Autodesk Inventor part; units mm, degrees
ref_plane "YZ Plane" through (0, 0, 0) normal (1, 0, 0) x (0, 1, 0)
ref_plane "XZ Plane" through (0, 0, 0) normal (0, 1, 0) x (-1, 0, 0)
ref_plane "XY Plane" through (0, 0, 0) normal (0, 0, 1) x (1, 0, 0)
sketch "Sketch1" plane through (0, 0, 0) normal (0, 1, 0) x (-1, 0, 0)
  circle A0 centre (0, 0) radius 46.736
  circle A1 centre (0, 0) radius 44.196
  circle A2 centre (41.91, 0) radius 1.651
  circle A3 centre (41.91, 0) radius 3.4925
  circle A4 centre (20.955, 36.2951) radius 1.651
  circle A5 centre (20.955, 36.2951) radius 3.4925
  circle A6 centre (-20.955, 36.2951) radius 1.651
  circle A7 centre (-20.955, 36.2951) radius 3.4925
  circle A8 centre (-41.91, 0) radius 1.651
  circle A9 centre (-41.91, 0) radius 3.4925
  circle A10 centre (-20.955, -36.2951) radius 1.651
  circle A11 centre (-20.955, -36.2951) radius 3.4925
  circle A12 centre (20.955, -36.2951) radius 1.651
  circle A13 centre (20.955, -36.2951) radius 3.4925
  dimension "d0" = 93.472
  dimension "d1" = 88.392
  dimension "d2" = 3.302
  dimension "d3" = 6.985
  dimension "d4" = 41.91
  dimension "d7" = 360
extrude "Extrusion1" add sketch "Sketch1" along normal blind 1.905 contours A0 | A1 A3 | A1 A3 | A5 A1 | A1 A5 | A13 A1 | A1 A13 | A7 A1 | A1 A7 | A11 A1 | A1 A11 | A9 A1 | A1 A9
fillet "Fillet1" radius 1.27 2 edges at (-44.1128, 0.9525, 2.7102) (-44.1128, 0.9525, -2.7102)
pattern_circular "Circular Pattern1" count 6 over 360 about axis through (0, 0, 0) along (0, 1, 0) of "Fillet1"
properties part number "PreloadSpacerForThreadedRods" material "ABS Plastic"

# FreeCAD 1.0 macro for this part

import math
import FreeCAD as App
import Part
import Sketcher
from FreeCAD import Vector
Q = App.Units.Quantity


def edges_at(feature, points):
    """Names of the edges that pass closest to the given points."""
    edges = feature.Shape.Edges
    near = lambda p: min(range(len(edges)), key=lambda i: edges[i].distToShape(Part.Vertex(*p))[0])
    return sorted({f"Edge{near(p) + 1}" for p in points})

doc = App.newDocument("Part")
body = doc.addObject("PartDesign::Body", "Body")

# Sketch on XZ plane
sketch1 = body.newObject("Sketcher::SketchObject", "Sketch")
sketch1.AttachmentSupport = (doc.getObject("XZ_Plane"), [""])
sketch1.MapMode = "FlatFace"
sketch1.addGeometry([
    Part.Circle(Vector(0, 0, 0), Vector(0, 0, 1), 46.736),  # 0
    Part.ArcOfCircle(Part.Circle(Vector(0, 0, 0), Vector(0, 0, 1), 44.196), math.radians(123.515692), math.radians(176.484301)),  # 1
    Part.ArcOfCircle(Part.Circle(Vector(-41.91, 0, 0), Vector(0, 0, 1), 3.4925), math.radians(-129.104003), math.radians(129.104003)),  # 2
    Part.ArcOfCircle(Part.Circle(Vector(0, 0, 0), Vector(0, 0, 1), 44.196), math.radians(-176.484301), math.radians(-123.515692)),  # 3
    Part.ArcOfCircle(Part.Circle(Vector(-20.955, -36.2951, 0), Vector(0, 0, 1), 3.4925), math.radians(-69.104496), math.radians(189.104462)),  # 4
    Part.ArcOfCircle(Part.Circle(Vector(0, 0, 0), Vector(0, 0, 1), 44.196), math.radians(-116.484342), math.radians(-63.515658)),  # 5
    Part.ArcOfCircle(Part.Circle(Vector(20.955, -36.2951, 0), Vector(0, 0, 1), 3.4925), math.radians(-9.104462), math.radians(249.104496)),  # 6
    Part.ArcOfCircle(Part.Circle(Vector(0, 0, 0), Vector(0, 0, 1), 44.196), math.radians(-56.484308), math.radians(-3.515699)),  # 7
    Part.ArcOfCircle(Part.Circle(Vector(41.91, 0, 0), Vector(0, 0, 1), 3.4925), math.radians(50.895997), math.radians(309.104003)),  # 8
    Part.ArcOfCircle(Part.Circle(Vector(0, 0, 0), Vector(0, 0, 1), 44.196), math.radians(3.515699), math.radians(56.484308)),  # 9
    Part.ArcOfCircle(Part.Circle(Vector(20.955, 36.2951, 0), Vector(0, 0, 1), 3.4925), math.radians(110.895504), math.radians(369.104462)),  # 10
    Part.ArcOfCircle(Part.Circle(Vector(0, 0, 0), Vector(0, 0, 1), 44.196), math.radians(63.515658), math.radians(116.484342)),  # 11
    Part.ArcOfCircle(Part.Circle(Vector(-20.955, 36.2951, 0), Vector(0, 0, 1), 3.4925), math.radians(170.895538), math.radians(429.104496)),  # 12
    Part.Circle(Vector(-20.955, 36.2951, 0), Vector(0, 0, 1), 1.651),  # 13
    Part.Circle(Vector(20.955, 36.2951, 0), Vector(0, 0, 1), 1.651),  # 14
    Part.Circle(Vector(41.91, 0, 0), Vector(0, 0, 1), 1.651),  # 15
    Part.Circle(Vector(20.955, -36.2951, 0), Vector(0, 0, 1), 1.651),  # 16
    Part.Circle(Vector(-20.955, -36.2951, 0), Vector(0, 0, 1), 1.651),  # 17
    Part.Circle(Vector(-41.91, 0, 0), Vector(0, 0, 1), 1.651),  # 18
], False)
sketch1.addConstraint([
    Sketcher.Constraint("Coincident", 1, 2, 2, 2),
    Sketcher.Constraint("Coincident", 2, 1, 3, 1),
    Sketcher.Constraint("Coincident", 3, 2, 4, 2),
    Sketcher.Constraint("Coincident", 4, 1, 5, 1),
    Sketcher.Constraint("Coincident", 5, 2, 6, 2),
    Sketcher.Constraint("Coincident", 6, 1, 7, 1),
    Sketcher.Constraint("Coincident", 7, 2, 8, 2),
    Sketcher.Constraint("Coincident", 8, 1, 9, 1),
    Sketcher.Constraint("Coincident", 9, 2, 10, 2),
    Sketcher.Constraint("Coincident", 10, 1, 11, 1),
    Sketcher.Constraint("Coincident", 11, 2, 12, 2),
    Sketcher.Constraint("Coincident", 12, 1, 1, 1),
    Sketcher.Constraint("Coincident", 0, 3, -1, 1),
    Sketcher.Constraint("Coincident", 1, 3, -1, 1),
    Sketcher.Constraint("Coincident", 3, 3, -1, 1),
    Sketcher.Constraint("Coincident", 5, 3, -1, 1),
    Sketcher.Constraint("Coincident", 7, 3, -1, 1),
    Sketcher.Constraint("Coincident", 9, 3, -1, 1),
    Sketcher.Constraint("Coincident", 11, 3, -1, 1),
    Sketcher.Constraint("Coincident", 13, 3, 12, 3),
    Sketcher.Constraint("Coincident", 14, 3, 10, 3),
    Sketcher.Constraint("Coincident", 15, 3, 8, 3),
    Sketcher.Constraint("Coincident", 16, 3, 6, 3),
    Sketcher.Constraint("Coincident", 17, 3, 4, 3),
    Sketcher.Constraint("Coincident", 18, 3, 2, 3),
    Sketcher.Constraint("Equal", 1, 3),
    Sketcher.Constraint("Equal", 2, 4),
    Sketcher.Constraint("Equal", 3, 5),
    Sketcher.Constraint("Equal", 4, 6),
    Sketcher.Constraint("Equal", 5, 7),
    Sketcher.Constraint("Equal", 6, 8),
    Sketcher.Constraint("Equal", 7, 9),
    Sketcher.Constraint("Equal", 8, 10),
    Sketcher.Constraint("Equal", 9, 11),
    Sketcher.Constraint("Equal", 10, 12),
    Sketcher.Constraint("Equal", 13, 14),
    Sketcher.Constraint("Equal", 14, 15),
    Sketcher.Constraint("Equal", 15, 16),
    Sketcher.Constraint("Equal", 16, 17),
    Sketcher.Constraint("Equal", 17, 18),
    Sketcher.Constraint("Symmetric", 2, 3, 8, 3, -1, 1),
    Sketcher.Constraint("Symmetric", 4, 3, 10, 3, -1, 1),
    Sketcher.Constraint("Symmetric", 6, 3, 12, 3, -1, 1),
    Sketcher.Constraint("Symmetric", 4, 3, 6, 3, -2),
    Sketcher.Constraint("PointOnObject", 2, 3, -1),
    Sketcher.Constraint("Diameter", 0, Q("3.68 in")),
    Sketcher.Constraint("Diameter", 13, Q("0.13 in")),
    Sketcher.Constraint("Radius", 1, Q("1.74 in")),
    Sketcher.Constraint("Radius", 2, Q("0.1375 in")),
    Sketcher.Constraint("DistanceX", 2, 3, -1, 1, Q("1.65 in")),
    Sketcher.Constraint("DistanceX", 4, 3, 6, 3, Q("1.65 in")),
    Sketcher.Constraint("DistanceY", 4, 1, -1, 1, Q("1.5574 in")),
])
pad1 = body.newObject("PartDesign::Pad", "Pad")
pad1.Profile = sketch1
pad1.Length = Q("0.075 in")
pad1.Reversed = True
doc.recompute()

fillet = body.newObject("PartDesign::Fillet", "Fillet")
fillet.Base = (pad1, edges_at(pad1, [(-44.113, 0.953, 2.71), (-44.113, 0.953, -2.71)]))
fillet.Radius = Q("0.05 in")
doc.recompute()

polarpattern = body.newObject("PartDesign::PolarPattern", "PolarPattern")
polarpattern.Originals = [fillet]
polarpattern.Axis = (doc.getObject("Y_Axis"), [""])
polarpattern.Angle = 360
polarpattern.Occurrences = 6
body.Tip = polarpattern

doc.recompute()
